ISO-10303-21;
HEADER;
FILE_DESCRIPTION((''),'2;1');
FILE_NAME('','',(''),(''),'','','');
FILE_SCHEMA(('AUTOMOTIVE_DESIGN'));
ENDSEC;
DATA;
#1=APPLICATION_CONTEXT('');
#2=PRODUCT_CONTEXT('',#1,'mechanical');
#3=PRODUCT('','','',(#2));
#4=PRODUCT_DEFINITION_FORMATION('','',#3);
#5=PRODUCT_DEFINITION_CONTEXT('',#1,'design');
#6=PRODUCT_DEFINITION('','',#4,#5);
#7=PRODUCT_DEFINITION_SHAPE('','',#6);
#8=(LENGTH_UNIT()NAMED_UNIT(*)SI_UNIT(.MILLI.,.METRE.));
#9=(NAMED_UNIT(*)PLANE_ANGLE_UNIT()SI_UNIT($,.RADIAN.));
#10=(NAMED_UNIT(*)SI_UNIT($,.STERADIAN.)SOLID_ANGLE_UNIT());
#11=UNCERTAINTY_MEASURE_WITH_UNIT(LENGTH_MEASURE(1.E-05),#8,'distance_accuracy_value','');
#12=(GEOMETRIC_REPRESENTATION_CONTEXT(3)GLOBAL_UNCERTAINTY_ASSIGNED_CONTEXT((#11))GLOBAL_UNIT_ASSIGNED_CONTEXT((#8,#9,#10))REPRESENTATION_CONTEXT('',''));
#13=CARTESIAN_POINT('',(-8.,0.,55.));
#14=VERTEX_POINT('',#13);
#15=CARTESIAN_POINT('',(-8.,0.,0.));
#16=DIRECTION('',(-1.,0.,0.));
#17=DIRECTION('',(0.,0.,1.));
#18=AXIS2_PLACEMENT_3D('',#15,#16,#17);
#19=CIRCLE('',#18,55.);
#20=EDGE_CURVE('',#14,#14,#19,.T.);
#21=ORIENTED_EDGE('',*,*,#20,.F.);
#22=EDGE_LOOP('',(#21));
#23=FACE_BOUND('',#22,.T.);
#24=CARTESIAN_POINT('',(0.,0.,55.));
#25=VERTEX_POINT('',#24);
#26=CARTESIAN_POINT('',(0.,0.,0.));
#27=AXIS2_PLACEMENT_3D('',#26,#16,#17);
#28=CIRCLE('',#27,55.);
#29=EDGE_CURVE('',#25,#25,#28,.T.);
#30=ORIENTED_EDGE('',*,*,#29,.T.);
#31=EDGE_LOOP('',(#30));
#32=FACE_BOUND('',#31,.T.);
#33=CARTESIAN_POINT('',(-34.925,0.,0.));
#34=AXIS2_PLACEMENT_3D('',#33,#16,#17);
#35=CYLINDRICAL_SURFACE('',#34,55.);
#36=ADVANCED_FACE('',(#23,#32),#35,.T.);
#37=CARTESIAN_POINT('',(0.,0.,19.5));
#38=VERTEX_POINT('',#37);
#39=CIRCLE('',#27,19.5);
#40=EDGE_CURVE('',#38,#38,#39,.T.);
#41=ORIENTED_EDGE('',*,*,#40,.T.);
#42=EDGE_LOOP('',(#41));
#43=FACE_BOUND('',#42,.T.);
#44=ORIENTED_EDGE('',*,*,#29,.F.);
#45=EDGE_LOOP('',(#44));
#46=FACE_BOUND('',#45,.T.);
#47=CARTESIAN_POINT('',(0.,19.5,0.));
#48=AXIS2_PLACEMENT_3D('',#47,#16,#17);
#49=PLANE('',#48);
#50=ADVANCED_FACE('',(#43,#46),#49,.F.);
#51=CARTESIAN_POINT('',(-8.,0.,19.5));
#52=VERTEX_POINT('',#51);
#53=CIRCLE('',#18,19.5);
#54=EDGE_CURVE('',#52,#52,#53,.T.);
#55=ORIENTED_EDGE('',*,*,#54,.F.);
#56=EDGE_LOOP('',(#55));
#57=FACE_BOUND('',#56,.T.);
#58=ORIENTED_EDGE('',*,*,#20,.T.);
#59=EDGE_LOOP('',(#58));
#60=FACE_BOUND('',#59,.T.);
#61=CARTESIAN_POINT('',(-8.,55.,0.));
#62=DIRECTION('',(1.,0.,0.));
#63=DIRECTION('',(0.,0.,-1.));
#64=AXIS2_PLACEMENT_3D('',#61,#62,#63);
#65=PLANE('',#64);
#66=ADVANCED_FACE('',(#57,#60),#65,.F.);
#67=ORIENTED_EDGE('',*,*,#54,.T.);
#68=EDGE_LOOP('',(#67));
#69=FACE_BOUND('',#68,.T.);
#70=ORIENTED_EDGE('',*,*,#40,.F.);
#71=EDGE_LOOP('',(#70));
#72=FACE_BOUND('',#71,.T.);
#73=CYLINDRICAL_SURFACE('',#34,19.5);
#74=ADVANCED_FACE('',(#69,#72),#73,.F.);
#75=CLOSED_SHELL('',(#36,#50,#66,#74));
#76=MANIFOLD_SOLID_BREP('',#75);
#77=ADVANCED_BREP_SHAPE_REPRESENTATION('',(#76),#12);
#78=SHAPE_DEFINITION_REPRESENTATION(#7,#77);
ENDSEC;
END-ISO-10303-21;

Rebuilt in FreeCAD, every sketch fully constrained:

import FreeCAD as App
import Part
import Sketcher

V = App.Vector


def add_polygon(sketch, points):
    """Adds a closed chain of lines whose ends are joined by coincident constraints."""
    first, n = sketch.GeometryCount, len(points)
    for a, b in zip(points, points[1:] + points[:1]):
        sketch.addGeometry(Part.LineSegment(App.Vector(*a, 0), App.Vector(*b, 0)), False)
    for i in range(n):
        sketch.addConstraint(Sketcher.Constraint("Coincident", first + i, 2, first + (i + 1) % n, 1))

doc = App.newDocument("Part")
body = doc.addObject("PartDesign::Body", "Body")

sketch1 = body.newObject("Sketcher::SketchObject", "Sketch")
sketch1.AttachmentSupport = (doc.getObject("XY_Plane"), [""])
sketch1.MapMode = "FlatFace"
add_polygon(sketch1, [(-8, 55), (-8, 19.5), (0, 19.5), (0, 55)])
sketch1.addConstraint(Sketcher.Constraint("Vertical", 0))
sketch1.addConstraint(Sketcher.Constraint("Horizontal", 1))
sketch1.addConstraint(Sketcher.Constraint("Vertical", 2))
sketch1.addConstraint(Sketcher.Constraint("Horizontal", 3))
sketch1.addConstraint(Sketcher.Constraint("PointOnObject", 1, 2, -2))
sketch1.addConstraint(Sketcher.Constraint("DistanceX", 1, 1, 1, 2, 8.0))
sketch1.addConstraint(Sketcher.Constraint("DistanceY", 0, 2, 0, 1, 35.5))
sketch1.addConstraint(Sketcher.Constraint("DistanceY", -1, 1, 2, 2, 55.0))
revolution = body.newObject("PartDesign::Revolution", "Revolution")
revolution.Profile = sketch1
revolution.ReferenceAxis = (sketch1, ["H_Axis"])
revolution.Angle = 360

doc.recompute()
